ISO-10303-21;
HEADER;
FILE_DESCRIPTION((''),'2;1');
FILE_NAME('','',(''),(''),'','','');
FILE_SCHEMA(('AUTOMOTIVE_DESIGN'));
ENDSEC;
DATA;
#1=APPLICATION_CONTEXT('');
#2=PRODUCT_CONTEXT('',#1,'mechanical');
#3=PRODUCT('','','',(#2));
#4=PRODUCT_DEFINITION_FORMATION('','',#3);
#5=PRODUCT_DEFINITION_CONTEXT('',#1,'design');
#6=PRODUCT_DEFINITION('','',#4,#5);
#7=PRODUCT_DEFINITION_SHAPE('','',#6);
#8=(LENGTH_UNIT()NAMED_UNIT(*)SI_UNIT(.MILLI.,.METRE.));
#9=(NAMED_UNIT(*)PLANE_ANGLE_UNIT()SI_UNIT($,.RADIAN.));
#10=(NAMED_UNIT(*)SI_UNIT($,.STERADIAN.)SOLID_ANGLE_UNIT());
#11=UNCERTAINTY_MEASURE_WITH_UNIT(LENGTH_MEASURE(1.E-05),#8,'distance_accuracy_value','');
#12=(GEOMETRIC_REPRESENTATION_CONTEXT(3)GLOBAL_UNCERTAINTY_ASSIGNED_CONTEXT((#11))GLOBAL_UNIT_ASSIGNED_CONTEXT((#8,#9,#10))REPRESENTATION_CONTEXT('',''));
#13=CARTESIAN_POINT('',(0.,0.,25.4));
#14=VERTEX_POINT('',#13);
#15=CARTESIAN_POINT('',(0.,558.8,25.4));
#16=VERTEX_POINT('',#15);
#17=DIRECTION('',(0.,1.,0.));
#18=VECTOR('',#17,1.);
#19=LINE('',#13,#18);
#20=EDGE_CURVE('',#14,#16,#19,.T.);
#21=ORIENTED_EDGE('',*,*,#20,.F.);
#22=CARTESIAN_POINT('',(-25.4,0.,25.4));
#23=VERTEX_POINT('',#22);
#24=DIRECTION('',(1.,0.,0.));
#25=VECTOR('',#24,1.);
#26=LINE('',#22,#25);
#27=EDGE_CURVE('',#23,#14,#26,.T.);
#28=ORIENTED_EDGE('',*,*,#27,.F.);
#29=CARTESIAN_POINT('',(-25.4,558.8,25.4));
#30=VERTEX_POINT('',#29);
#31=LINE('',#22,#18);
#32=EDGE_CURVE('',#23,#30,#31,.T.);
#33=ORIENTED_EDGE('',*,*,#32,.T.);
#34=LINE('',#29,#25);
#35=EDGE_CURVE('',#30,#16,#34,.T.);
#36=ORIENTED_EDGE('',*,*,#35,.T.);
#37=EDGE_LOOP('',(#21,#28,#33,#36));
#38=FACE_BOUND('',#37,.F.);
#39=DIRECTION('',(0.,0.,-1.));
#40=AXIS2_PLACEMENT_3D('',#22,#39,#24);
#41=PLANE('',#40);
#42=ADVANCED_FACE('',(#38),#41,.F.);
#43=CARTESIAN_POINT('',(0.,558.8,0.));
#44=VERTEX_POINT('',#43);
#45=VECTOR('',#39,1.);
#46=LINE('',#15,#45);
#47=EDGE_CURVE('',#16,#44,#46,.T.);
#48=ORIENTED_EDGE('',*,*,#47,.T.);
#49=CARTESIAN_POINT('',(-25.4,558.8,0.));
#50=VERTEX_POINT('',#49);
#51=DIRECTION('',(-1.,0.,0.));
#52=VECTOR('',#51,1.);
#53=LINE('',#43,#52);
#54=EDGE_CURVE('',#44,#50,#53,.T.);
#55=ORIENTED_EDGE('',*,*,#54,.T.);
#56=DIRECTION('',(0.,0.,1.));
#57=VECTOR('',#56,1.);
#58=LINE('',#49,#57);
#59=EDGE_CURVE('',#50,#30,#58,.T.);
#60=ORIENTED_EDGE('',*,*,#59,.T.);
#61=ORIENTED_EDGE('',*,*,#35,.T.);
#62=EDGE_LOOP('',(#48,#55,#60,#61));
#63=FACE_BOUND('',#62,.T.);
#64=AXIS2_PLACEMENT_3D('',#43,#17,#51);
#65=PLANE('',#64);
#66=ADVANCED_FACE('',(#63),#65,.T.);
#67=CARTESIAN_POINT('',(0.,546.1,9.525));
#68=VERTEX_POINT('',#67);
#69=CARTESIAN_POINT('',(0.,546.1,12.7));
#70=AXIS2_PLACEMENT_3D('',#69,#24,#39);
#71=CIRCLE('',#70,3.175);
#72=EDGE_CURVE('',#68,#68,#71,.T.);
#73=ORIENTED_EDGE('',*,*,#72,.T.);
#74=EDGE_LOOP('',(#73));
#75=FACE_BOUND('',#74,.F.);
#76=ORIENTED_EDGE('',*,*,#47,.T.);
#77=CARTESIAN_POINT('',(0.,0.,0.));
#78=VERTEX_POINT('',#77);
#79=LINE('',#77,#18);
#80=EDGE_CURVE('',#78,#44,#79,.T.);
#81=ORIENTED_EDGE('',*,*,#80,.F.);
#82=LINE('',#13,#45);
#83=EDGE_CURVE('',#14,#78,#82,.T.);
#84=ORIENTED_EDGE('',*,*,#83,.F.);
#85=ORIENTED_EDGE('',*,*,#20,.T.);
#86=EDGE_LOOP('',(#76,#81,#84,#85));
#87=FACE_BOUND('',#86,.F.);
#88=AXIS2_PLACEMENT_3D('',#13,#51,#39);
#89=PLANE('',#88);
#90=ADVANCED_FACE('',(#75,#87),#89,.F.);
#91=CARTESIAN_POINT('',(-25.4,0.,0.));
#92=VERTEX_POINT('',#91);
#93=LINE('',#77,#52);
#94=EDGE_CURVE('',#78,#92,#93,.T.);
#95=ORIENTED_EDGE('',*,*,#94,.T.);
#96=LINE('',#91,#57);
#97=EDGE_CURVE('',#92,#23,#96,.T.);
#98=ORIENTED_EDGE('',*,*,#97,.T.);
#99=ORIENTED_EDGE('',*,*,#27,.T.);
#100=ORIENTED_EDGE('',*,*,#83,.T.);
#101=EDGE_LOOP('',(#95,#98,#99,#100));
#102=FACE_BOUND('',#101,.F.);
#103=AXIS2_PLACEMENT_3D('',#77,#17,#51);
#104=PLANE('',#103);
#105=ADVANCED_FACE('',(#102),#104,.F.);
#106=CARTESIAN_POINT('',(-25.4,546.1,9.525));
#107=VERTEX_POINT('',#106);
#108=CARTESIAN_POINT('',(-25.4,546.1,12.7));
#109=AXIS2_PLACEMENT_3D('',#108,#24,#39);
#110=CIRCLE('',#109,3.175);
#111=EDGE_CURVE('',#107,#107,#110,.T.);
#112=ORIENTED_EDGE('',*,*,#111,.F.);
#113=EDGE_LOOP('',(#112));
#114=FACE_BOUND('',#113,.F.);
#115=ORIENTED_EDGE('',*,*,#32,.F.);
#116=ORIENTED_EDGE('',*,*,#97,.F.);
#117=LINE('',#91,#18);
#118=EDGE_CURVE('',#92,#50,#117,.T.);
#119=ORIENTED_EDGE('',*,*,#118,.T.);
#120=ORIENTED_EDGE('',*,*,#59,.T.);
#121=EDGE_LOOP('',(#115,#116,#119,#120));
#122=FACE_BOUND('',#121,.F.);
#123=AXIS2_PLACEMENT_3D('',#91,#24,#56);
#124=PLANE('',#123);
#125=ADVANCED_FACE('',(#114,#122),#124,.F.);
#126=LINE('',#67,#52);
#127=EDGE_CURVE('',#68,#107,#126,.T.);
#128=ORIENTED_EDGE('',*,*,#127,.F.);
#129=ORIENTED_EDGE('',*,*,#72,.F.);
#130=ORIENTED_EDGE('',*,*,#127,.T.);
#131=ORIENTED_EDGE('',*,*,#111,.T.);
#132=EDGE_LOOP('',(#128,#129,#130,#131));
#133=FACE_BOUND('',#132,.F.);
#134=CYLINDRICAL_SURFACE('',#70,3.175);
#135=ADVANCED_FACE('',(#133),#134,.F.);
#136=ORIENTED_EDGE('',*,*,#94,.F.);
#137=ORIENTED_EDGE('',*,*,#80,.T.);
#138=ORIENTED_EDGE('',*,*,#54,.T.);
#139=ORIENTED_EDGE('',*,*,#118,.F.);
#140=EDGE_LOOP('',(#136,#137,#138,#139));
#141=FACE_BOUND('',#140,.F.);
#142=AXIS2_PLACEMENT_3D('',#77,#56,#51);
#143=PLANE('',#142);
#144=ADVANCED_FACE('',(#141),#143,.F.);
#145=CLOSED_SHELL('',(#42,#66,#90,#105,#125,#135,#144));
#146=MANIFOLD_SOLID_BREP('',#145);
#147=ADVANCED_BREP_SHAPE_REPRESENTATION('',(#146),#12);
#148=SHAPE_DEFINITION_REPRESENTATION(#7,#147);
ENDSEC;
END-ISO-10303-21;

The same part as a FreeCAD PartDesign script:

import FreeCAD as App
import Part
import Sketcher
Q = App.Units.Quantity

doc = App.newDocument("Part")
body = doc.addObject("PartDesign::Body", "Body")

# Sketch on XZ plane
sketch1 = body.newObject("Sketcher::SketchObject", "Sketch")
sketch1.AttachmentSupport = (doc.getObject("XZ_Plane"), [""])
sketch1.MapMode = "FlatFace"
sketch1.addGeometry(Part.LineSegment(App.Vector(0, 25, 0), App.Vector(0, 0, 0)), False)
sketch1.addGeometry(Part.LineSegment(App.Vector(0, 0, 0), App.Vector(-25, 0, 0)), False)
sketch1.addGeometry(Part.LineSegment(App.Vector(-25, 0, 0), App.Vector(-25, 25, 0)), False)
sketch1.addGeometry(Part.LineSegment(App.Vector(-25, 25, 0), App.Vector(0, 25, 0)), False)
sketch1.addConstraint(Sketcher.Constraint("Coincident", 0, 2, 1, 1))
sketch1.addConstraint(Sketcher.Constraint("Coincident", 1, 2, 2, 1))
sketch1.addConstraint(Sketcher.Constraint("Coincident", 2, 2, 3, 1))
sketch1.addConstraint(Sketcher.Constraint("Coincident", 3, 2, 0, 1))
sketch1.addConstraint(Sketcher.Constraint("Vertical", 0))
sketch1.addConstraint(Sketcher.Constraint("Horizontal", 1))
sketch1.addConstraint(Sketcher.Constraint("Vertical", 2))
sketch1.addConstraint(Sketcher.Constraint("Horizontal", 3))
sketch1.addConstraint(Sketcher.Constraint("Coincident", 0, 2, -1, 1))
sketch1.addConstraint(Sketcher.Constraint("Equal", 3, 0))
sketch1.addConstraint(Sketcher.Constraint("DistanceX", 1, 2, 1, 1, Q("1 in")))
pad1 = body.newObject("PartDesign::Pad", "Pad")
pad1.Profile = sketch1
pad1.Length = Q("22 in")
pad1.Reversed = True

# Sketch on YZ plane
sketch2 = body.newObject("Sketcher::SketchObject", "Sketch001")
sketch2.AttachmentSupport = (doc.getObject("YZ_Plane"), [""])
sketch2.MapMode = "FlatFace"
sketch2.addGeometry(Part.Circle(App.Vector(546.1, 12.7, 0), App.Vector(0, 0, 1), 3.2), False)
sketch2.addConstraint(Sketcher.Constraint("Diameter", 0, Q("0.25 in")))
sketch2.addConstraint(Sketcher.Constraint("DistanceY", -1, 1, 0, 3, Q("0.5 in")))
sketch2.addConstraint(Sketcher.Constraint("DistanceX", -1, 1, 0, 3, Q("21.5 in")))
pocket1 = body.newObject("PartDesign::Pocket", "Pocket")
pocket1.Profile = sketch2
pocket1.Length = Q("2 in")

doc.recompute()
